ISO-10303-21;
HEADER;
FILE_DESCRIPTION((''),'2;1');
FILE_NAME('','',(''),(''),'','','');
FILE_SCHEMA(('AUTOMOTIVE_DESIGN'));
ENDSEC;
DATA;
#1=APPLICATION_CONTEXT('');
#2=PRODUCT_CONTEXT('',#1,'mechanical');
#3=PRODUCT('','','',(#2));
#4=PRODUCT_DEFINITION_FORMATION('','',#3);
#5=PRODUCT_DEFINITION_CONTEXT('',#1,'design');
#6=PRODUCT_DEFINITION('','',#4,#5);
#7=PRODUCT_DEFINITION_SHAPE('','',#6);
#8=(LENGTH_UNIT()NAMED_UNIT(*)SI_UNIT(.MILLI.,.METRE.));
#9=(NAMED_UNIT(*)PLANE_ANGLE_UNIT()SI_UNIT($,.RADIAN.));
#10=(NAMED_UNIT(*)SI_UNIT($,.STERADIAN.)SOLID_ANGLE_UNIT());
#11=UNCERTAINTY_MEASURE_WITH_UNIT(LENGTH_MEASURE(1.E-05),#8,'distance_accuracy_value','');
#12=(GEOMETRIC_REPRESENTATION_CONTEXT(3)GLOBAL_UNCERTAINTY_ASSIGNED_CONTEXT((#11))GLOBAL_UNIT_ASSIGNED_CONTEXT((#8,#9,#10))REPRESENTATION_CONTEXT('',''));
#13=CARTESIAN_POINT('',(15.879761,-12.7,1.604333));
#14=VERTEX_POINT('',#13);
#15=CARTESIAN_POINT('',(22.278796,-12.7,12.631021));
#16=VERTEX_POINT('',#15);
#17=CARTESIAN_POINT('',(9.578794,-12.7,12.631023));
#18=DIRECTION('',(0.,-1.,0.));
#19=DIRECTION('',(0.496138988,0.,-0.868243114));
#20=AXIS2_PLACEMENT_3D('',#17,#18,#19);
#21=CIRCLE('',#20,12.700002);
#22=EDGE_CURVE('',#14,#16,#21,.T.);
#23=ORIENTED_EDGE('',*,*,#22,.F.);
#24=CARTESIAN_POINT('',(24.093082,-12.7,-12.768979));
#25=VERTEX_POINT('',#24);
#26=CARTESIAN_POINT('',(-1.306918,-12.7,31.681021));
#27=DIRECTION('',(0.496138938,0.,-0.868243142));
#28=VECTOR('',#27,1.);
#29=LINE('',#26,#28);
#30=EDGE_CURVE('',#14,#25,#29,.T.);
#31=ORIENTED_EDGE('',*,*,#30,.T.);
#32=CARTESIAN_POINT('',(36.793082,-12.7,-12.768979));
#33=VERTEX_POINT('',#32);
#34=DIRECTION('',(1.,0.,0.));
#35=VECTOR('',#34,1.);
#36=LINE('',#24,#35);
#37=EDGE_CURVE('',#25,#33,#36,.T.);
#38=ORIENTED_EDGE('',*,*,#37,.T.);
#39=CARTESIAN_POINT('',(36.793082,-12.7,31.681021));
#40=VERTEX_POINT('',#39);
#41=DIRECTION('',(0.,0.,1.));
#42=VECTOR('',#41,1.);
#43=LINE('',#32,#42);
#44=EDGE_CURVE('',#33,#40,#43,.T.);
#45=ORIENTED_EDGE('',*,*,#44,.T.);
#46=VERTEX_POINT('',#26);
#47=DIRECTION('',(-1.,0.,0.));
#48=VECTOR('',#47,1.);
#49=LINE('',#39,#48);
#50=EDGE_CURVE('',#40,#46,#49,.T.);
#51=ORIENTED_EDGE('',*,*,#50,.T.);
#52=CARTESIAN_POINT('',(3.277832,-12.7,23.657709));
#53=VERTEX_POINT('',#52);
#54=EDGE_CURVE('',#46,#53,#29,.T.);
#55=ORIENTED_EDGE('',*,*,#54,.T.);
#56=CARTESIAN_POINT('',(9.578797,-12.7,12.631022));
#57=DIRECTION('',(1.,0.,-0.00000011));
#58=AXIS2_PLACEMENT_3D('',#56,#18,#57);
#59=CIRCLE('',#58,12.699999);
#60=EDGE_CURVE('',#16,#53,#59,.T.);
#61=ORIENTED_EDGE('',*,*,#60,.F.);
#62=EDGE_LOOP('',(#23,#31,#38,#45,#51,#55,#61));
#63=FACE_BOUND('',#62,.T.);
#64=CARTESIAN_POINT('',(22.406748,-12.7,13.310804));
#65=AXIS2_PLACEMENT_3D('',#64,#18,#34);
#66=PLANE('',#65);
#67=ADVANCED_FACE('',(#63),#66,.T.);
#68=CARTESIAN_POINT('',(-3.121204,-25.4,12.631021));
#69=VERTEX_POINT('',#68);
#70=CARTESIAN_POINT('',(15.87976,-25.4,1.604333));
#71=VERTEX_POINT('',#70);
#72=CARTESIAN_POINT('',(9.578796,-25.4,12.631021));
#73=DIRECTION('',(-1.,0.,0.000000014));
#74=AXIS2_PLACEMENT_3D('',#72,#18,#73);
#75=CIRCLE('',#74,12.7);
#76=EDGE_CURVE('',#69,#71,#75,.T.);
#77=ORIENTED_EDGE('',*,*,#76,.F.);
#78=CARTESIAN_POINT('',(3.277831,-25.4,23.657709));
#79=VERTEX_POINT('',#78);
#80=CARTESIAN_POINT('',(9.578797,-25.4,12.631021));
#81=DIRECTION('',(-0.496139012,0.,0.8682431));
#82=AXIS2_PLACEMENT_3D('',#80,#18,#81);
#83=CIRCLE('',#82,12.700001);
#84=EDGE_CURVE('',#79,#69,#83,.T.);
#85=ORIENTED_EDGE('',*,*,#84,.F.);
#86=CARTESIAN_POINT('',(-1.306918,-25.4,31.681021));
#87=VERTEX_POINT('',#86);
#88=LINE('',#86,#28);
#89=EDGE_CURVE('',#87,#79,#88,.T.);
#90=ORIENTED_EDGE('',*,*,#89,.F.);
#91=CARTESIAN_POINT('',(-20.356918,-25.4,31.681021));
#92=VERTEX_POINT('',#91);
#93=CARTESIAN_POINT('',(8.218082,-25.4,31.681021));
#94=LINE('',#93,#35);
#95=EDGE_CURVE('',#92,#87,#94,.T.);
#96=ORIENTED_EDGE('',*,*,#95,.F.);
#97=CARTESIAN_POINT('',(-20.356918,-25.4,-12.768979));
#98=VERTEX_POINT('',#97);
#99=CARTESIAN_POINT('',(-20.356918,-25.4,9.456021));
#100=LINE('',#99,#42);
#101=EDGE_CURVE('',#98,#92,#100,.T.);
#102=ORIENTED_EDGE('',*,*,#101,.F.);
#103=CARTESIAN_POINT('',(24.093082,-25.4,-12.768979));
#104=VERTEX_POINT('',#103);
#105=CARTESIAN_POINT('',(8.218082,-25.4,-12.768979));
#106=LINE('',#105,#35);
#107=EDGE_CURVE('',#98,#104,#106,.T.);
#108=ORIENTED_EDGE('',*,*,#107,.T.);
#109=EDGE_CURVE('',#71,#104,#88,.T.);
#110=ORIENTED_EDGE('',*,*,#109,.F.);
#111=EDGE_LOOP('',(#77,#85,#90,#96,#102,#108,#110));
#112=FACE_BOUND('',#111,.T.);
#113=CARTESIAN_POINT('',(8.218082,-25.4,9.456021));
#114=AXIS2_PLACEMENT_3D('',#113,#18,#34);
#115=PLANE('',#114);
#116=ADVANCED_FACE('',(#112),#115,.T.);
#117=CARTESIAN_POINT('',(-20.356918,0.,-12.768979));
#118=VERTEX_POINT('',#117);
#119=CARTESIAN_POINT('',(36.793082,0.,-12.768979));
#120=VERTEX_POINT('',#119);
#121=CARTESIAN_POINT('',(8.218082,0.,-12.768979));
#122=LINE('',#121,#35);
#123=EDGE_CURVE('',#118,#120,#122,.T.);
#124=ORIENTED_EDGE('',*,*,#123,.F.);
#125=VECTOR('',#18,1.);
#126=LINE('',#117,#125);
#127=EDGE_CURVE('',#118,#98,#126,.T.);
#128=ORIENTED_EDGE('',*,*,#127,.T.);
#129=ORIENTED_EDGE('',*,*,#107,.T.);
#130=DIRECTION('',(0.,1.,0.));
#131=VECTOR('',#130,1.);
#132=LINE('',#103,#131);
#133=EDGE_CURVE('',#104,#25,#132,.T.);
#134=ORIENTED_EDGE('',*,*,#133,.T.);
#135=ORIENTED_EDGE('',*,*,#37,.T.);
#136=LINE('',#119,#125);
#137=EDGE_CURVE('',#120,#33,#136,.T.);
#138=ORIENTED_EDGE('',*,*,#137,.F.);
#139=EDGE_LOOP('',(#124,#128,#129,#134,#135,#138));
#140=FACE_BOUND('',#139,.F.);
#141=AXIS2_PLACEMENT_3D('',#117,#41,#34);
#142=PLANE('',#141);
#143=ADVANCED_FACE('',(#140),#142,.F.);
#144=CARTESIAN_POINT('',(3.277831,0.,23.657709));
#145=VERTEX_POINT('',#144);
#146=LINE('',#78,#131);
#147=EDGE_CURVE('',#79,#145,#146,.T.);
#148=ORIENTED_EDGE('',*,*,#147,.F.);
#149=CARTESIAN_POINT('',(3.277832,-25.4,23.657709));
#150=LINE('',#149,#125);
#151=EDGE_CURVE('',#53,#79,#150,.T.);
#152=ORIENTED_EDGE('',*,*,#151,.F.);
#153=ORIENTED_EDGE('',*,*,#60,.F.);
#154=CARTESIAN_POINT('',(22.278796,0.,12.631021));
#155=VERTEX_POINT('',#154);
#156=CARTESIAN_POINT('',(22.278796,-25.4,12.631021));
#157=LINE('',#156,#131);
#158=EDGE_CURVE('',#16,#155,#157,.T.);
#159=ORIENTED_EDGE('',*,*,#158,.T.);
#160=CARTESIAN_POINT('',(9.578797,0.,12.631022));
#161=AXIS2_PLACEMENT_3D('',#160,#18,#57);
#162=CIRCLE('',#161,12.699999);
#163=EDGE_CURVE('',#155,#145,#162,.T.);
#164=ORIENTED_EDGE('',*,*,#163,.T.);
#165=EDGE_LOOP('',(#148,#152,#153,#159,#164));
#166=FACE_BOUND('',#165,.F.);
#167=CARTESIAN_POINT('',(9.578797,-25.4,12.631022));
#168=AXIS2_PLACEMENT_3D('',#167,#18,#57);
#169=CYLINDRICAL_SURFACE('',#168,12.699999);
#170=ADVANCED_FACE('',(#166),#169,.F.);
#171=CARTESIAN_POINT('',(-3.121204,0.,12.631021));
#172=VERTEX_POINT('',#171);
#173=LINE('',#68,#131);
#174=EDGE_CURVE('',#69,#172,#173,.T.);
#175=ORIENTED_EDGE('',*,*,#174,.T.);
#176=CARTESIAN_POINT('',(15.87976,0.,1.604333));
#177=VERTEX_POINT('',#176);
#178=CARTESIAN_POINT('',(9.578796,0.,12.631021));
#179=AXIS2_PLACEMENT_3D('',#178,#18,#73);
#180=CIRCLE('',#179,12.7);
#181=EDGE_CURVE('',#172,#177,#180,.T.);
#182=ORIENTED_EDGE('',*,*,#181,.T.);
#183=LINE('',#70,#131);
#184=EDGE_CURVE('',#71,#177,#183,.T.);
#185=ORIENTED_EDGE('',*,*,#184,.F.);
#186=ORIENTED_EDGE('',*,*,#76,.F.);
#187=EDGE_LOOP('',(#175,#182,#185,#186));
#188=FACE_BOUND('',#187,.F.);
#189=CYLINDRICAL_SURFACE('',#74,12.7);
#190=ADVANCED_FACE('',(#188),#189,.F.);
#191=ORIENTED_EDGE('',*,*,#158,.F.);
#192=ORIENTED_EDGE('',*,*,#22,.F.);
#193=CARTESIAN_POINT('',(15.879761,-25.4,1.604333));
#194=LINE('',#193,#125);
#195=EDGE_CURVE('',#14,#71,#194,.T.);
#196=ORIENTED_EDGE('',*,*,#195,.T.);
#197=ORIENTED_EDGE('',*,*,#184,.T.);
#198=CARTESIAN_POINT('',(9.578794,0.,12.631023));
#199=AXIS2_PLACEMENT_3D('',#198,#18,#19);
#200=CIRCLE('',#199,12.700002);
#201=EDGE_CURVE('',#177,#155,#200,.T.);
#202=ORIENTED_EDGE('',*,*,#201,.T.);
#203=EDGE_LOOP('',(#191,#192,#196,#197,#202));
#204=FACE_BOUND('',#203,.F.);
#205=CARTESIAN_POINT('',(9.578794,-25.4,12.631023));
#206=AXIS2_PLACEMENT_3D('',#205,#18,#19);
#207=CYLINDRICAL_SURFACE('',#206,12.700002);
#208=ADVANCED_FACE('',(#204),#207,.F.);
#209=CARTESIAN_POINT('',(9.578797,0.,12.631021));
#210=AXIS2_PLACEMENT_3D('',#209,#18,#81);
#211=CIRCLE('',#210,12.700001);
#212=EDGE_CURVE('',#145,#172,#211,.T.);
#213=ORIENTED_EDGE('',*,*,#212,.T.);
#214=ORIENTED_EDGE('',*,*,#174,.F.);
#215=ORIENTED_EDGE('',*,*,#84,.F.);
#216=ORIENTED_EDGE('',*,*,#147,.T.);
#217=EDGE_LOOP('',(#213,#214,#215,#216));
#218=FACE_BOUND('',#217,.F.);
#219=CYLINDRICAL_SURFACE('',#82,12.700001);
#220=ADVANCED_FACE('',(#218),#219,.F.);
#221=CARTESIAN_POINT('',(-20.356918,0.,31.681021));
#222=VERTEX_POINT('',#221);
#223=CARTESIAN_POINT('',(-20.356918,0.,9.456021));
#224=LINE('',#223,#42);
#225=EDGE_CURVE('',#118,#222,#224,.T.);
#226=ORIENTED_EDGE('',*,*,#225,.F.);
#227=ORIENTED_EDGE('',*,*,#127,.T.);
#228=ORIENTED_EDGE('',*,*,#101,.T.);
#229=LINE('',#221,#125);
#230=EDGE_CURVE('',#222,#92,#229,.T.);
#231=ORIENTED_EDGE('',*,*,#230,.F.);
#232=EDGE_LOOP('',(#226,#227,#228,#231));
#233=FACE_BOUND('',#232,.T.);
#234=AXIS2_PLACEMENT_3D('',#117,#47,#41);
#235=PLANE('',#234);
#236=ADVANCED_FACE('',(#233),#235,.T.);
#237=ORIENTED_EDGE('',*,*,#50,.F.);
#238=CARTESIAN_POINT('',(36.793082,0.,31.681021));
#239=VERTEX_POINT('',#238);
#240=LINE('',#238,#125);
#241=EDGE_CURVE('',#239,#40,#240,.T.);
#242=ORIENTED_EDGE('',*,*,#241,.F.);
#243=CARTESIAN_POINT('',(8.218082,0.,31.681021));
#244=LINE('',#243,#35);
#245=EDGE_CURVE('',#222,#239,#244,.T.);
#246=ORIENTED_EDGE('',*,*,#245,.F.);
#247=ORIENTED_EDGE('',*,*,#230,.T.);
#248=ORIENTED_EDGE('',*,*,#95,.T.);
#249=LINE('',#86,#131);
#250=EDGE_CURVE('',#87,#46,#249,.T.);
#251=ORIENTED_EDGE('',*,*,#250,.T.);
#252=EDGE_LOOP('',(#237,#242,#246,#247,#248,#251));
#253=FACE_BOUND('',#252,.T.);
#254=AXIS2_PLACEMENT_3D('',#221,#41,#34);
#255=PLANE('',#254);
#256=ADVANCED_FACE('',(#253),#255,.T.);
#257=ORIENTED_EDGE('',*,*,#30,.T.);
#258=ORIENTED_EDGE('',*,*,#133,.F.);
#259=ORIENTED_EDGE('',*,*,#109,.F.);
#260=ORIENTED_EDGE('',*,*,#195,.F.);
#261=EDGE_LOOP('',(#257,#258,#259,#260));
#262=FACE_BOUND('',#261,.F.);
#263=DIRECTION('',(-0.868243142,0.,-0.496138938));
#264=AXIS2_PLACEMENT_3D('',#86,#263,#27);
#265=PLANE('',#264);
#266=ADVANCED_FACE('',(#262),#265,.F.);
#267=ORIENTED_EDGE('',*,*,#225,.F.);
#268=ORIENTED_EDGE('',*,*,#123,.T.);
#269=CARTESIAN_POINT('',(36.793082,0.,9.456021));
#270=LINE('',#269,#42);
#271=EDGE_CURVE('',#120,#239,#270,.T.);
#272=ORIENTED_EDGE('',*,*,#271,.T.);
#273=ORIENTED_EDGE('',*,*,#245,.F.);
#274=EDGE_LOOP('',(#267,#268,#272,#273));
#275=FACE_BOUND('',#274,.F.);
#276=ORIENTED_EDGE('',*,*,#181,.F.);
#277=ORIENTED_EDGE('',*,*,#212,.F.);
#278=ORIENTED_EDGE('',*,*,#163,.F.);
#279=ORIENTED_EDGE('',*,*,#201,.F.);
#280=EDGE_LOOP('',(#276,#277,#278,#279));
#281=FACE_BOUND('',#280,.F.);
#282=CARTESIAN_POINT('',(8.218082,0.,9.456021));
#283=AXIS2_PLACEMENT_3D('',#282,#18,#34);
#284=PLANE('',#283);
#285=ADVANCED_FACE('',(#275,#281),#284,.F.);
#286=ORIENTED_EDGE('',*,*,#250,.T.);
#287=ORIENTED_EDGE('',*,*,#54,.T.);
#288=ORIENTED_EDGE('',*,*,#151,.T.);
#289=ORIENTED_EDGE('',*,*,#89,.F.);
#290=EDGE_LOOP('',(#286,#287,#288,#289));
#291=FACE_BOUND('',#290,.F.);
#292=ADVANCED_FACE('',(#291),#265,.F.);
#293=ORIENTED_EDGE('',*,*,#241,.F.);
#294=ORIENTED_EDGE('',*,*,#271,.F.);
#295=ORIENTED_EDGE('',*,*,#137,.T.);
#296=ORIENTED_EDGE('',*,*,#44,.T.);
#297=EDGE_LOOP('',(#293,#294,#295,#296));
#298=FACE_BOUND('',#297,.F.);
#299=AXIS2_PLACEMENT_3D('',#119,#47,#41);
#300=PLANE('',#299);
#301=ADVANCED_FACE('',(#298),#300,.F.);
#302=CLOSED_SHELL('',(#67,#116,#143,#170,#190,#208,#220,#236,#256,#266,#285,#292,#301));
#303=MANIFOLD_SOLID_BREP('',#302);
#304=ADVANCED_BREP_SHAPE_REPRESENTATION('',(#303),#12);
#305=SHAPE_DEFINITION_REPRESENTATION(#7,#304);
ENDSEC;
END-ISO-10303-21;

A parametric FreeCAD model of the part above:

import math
import FreeCAD as App
import Part
import Sketcher
Q = App.Units.Quantity


def add_polygon(sketch, points):
    """Adds a closed chain of lines whose ends are joined by coincident constraints."""
    first, n = sketch.GeometryCount, len(points)
    for a, b in zip(points, points[1:] + points[:1]):
        sketch.addGeometry(Part.LineSegment(App.Vector(*a, 0), App.Vector(*b, 0)), False)
    for i in range(n):
        sketch.addConstraint(Sketcher.Constraint("Coincident", first + i, 2, first + (i + 1) % n, 1))

doc = App.newDocument("Part")
body = doc.addObject("PartDesign::Body", "Body")

sketch1 = body.newObject("Sketcher::SketchObject", "Sketch")
sketch1.AttachmentSupport = (doc.getObject("XZ_Plane"), [""])
sketch1.MapMode = "FlatFace"
add_polygon(sketch1, [(-20, 32), (-20, -13), (37, -13), (37, 32)])
sketch1.addConstraint([
    Sketcher.Constraint("Vertical", 0),
    Sketcher.Constraint("Horizontal", 1),
    Sketcher.Constraint("Vertical", 2),
    Sketcher.Constraint("Horizontal", 3),
    Sketcher.Constraint("DistanceX", 1, 1, 1, 2, Q("2.25 in")),
    Sketcher.Constraint("DistanceY", 0, 2, 0, 1, Q("1.75 in")),
    Sketcher.Constraint("DistanceX", 0, 2, -1, 1, Q("20.356918 mm")),
    Sketcher.Constraint("DistanceY", 0, 2, -1, 1, Q("12.768979 mm")),
])
pad1 = body.newObject("PartDesign::Pad", "Pad")
pad1.Profile = sketch1
pad1.Length = Q("1 in")

sketch2 = body.newObject("Sketcher::SketchObject", "Sketch001")
sketch2.AttachmentSupport = (doc.getObject("XZ_Plane"), [""])
sketch2.MapMode = "FlatFace"
sketch2.AttachmentOffset = App.Placement(App.Vector(0, 0, 1 * 25.4), App.Rotation())
add_polygon(sketch2, [(37, 32), (-1, 32), (24, -13), (37, -13)])
sketch2.addConstraint([
    Sketcher.Constraint("Horizontal", 0),
    Sketcher.Constraint("Horizontal", 2),
    Sketcher.Constraint("Vertical", 3),
    Sketcher.Constraint("DistanceX", 0, 2, 0, 1, Q("1.5 in")),
    Sketcher.Constraint("DistanceX", 2, 1, 2, 2, Q("0.5 in")),
    Sketcher.Constraint("DistanceY", 3, 1, 3, 2, Q("1.75 in")),
    Sketcher.Constraint("DistanceY", -1, 1, 0, 2, Q("31.681021 mm")),
    Sketcher.Constraint("DistanceX", -1, 1, 1, 2, Q("24.093082 mm")),
])
pocket1 = body.newObject("PartDesign::Pocket", "Pocket")
pocket1.Profile = sketch2
pocket1.Length = Q("0.5 in")

sketch3 = body.newObject("Sketcher::SketchObject", "Sketch002")
sketch3.AttachmentSupport = (doc.getObject("XZ_Plane"), [""])
sketch3.MapMode = "FlatFace"
sketch3.AttachmentOffset = App.Placement(App.Vector(0, 0, 1 * 25.4), App.Rotation())
sketch3.addGeometry([
    Part.ArcOfCircle(Part.Circle(App.Vector(10, 13, 0), App.Vector(0, 0, 1), 13), math.radians(180), math.radians(300)),
    Part.ArcOfCircle(Part.Circle(App.Vector(10, 13, 0), App.Vector(0, 0, 1), 13), math.radians(-60), math.radians(0)),
    Part.ArcOfCircle(Part.Circle(App.Vector(10, 13, 0), App.Vector(0, 0, 1), 13), math.radians(0), math.radians(120)),
    Part.ArcOfCircle(Part.Circle(App.Vector(10, 13, 0), App.Vector(0, 0, 1), 13), math.radians(120), math.radians(180)),
], False)
sketch3.addConstraint([
    Sketcher.Constraint("Tangent", 0, 2, 1, 1),
    Sketcher.Constraint("Tangent", 1, 2, 2, 1),
    Sketcher.Constraint("Tangent", 2, 2, 3, 1),
    Sketcher.Constraint("Tangent", 3, 2, 0, 1),
    Sketcher.Constraint("Equal", 2, 3),
    Sketcher.Constraint("Horizontal", 3, 3, 1, 2),
    Sketcher.Constraint("Horizontal", 1, 2, 3, 2),
    Sketcher.Constraint("Radius", 0, Q("0.5 in")),
    Sketcher.Constraint("DistanceY", -1, 1, 0, 3, Q("12.631021 mm")),
    Sketcher.Constraint("DistanceX", -1, 1, 0, 2, Q("15.87976 mm")),
    Sketcher.Constraint("DistanceX", -1, 1, 2, 2, Q("3.277831 mm")),
    Sketcher.Constraint("DistanceY", -1, 1, 2, 2, Q("23.657709 mm")),
])
pocket2 = body.newObject("PartDesign::Pocket", "Pocket001")
pocket2.Profile = sketch3
pocket2.Length = Q("1 in")

doc.recompute()
